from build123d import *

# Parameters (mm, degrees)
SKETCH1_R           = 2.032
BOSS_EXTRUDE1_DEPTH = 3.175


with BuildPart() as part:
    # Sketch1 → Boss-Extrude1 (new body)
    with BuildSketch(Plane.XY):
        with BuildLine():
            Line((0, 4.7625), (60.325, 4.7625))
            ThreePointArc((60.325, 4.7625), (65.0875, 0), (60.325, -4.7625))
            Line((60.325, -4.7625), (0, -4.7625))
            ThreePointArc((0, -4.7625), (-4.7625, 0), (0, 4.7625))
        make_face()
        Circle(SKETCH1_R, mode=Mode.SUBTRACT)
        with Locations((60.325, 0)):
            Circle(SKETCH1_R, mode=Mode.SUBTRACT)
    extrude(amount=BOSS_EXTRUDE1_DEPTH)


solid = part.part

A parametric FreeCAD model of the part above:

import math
import FreeCAD as App
import Part
import Sketcher
from FreeCAD import Vector
Q = App.Units.Quantity

doc = App.newDocument("Part")
body = doc.addObject("PartDesign::Body", "Body")

# Sketch on XY plane
sketch1 = body.newObject("Sketcher::SketchObject", "Sketch")
sketch1.AttachmentSupport = (doc.getObject("XY_Plane"), [""])
sketch1.MapMode = "FlatFace"
sketch1.addGeometry([
    Part.LineSegment(Vector(60.3, 4.8, 0), Vector(0, 4.8, 0)),  # 0
    Part.ArcOfCircle(Part.Circle(Vector(0, 0, 0), Vector(0, 0, 1), 4.8), math.radians(90), math.radians(270)),  # 1
    Part.LineSegment(Vector(0, -4.8, 0), Vector(60.3, -4.8, 0)),  # 2
    Part.ArcOfCircle(Part.Circle(Vector(60.3, 0, 0), Vector(0, 0, 1), 4.8), math.radians(-90), math.radians(90)),  # 3
    Part.Circle(Vector(60.3, 0, 0), Vector(0, 0, 1), 2),  # 4
    Part.Circle(Vector(0, 0, 0), Vector(0, 0, 1), 2),  # 5
], False)
sketch1.addConstraint([
    Sketcher.Constraint("Tangent", 0, 2, 1, 1),
    Sketcher.Constraint("Tangent", 1, 2, 2, 1),
    Sketcher.Constraint("Tangent", 2, 2, 3, 1),
    Sketcher.Constraint("Tangent", 3, 2, 0, 1),
    Sketcher.Constraint("Horizontal", 0),
    Sketcher.Constraint("Horizontal", 2),
    Sketcher.Constraint("Coincident", 1, 3, -1, 1),
    Sketcher.Constraint("Coincident", 5, 3, -1, 1),
    Sketcher.Constraint("Coincident", 4, 3, 3, 3),
    Sketcher.Constraint("Equal", 4, 5),
    Sketcher.Constraint("Diameter", 4, Q("0.16 in")),
    Sketcher.Constraint("Radius", 1, Q("0.1875 in")),
    Sketcher.Constraint("DistanceX", 0, 2, 0, 1, Q("2.375 in")),
])
pad1 = body.newObject("PartDesign::Pad", "Pad")
pad1.Profile = sketch1
pad1.Length = Q("0.125 in")

doc.recompute()
